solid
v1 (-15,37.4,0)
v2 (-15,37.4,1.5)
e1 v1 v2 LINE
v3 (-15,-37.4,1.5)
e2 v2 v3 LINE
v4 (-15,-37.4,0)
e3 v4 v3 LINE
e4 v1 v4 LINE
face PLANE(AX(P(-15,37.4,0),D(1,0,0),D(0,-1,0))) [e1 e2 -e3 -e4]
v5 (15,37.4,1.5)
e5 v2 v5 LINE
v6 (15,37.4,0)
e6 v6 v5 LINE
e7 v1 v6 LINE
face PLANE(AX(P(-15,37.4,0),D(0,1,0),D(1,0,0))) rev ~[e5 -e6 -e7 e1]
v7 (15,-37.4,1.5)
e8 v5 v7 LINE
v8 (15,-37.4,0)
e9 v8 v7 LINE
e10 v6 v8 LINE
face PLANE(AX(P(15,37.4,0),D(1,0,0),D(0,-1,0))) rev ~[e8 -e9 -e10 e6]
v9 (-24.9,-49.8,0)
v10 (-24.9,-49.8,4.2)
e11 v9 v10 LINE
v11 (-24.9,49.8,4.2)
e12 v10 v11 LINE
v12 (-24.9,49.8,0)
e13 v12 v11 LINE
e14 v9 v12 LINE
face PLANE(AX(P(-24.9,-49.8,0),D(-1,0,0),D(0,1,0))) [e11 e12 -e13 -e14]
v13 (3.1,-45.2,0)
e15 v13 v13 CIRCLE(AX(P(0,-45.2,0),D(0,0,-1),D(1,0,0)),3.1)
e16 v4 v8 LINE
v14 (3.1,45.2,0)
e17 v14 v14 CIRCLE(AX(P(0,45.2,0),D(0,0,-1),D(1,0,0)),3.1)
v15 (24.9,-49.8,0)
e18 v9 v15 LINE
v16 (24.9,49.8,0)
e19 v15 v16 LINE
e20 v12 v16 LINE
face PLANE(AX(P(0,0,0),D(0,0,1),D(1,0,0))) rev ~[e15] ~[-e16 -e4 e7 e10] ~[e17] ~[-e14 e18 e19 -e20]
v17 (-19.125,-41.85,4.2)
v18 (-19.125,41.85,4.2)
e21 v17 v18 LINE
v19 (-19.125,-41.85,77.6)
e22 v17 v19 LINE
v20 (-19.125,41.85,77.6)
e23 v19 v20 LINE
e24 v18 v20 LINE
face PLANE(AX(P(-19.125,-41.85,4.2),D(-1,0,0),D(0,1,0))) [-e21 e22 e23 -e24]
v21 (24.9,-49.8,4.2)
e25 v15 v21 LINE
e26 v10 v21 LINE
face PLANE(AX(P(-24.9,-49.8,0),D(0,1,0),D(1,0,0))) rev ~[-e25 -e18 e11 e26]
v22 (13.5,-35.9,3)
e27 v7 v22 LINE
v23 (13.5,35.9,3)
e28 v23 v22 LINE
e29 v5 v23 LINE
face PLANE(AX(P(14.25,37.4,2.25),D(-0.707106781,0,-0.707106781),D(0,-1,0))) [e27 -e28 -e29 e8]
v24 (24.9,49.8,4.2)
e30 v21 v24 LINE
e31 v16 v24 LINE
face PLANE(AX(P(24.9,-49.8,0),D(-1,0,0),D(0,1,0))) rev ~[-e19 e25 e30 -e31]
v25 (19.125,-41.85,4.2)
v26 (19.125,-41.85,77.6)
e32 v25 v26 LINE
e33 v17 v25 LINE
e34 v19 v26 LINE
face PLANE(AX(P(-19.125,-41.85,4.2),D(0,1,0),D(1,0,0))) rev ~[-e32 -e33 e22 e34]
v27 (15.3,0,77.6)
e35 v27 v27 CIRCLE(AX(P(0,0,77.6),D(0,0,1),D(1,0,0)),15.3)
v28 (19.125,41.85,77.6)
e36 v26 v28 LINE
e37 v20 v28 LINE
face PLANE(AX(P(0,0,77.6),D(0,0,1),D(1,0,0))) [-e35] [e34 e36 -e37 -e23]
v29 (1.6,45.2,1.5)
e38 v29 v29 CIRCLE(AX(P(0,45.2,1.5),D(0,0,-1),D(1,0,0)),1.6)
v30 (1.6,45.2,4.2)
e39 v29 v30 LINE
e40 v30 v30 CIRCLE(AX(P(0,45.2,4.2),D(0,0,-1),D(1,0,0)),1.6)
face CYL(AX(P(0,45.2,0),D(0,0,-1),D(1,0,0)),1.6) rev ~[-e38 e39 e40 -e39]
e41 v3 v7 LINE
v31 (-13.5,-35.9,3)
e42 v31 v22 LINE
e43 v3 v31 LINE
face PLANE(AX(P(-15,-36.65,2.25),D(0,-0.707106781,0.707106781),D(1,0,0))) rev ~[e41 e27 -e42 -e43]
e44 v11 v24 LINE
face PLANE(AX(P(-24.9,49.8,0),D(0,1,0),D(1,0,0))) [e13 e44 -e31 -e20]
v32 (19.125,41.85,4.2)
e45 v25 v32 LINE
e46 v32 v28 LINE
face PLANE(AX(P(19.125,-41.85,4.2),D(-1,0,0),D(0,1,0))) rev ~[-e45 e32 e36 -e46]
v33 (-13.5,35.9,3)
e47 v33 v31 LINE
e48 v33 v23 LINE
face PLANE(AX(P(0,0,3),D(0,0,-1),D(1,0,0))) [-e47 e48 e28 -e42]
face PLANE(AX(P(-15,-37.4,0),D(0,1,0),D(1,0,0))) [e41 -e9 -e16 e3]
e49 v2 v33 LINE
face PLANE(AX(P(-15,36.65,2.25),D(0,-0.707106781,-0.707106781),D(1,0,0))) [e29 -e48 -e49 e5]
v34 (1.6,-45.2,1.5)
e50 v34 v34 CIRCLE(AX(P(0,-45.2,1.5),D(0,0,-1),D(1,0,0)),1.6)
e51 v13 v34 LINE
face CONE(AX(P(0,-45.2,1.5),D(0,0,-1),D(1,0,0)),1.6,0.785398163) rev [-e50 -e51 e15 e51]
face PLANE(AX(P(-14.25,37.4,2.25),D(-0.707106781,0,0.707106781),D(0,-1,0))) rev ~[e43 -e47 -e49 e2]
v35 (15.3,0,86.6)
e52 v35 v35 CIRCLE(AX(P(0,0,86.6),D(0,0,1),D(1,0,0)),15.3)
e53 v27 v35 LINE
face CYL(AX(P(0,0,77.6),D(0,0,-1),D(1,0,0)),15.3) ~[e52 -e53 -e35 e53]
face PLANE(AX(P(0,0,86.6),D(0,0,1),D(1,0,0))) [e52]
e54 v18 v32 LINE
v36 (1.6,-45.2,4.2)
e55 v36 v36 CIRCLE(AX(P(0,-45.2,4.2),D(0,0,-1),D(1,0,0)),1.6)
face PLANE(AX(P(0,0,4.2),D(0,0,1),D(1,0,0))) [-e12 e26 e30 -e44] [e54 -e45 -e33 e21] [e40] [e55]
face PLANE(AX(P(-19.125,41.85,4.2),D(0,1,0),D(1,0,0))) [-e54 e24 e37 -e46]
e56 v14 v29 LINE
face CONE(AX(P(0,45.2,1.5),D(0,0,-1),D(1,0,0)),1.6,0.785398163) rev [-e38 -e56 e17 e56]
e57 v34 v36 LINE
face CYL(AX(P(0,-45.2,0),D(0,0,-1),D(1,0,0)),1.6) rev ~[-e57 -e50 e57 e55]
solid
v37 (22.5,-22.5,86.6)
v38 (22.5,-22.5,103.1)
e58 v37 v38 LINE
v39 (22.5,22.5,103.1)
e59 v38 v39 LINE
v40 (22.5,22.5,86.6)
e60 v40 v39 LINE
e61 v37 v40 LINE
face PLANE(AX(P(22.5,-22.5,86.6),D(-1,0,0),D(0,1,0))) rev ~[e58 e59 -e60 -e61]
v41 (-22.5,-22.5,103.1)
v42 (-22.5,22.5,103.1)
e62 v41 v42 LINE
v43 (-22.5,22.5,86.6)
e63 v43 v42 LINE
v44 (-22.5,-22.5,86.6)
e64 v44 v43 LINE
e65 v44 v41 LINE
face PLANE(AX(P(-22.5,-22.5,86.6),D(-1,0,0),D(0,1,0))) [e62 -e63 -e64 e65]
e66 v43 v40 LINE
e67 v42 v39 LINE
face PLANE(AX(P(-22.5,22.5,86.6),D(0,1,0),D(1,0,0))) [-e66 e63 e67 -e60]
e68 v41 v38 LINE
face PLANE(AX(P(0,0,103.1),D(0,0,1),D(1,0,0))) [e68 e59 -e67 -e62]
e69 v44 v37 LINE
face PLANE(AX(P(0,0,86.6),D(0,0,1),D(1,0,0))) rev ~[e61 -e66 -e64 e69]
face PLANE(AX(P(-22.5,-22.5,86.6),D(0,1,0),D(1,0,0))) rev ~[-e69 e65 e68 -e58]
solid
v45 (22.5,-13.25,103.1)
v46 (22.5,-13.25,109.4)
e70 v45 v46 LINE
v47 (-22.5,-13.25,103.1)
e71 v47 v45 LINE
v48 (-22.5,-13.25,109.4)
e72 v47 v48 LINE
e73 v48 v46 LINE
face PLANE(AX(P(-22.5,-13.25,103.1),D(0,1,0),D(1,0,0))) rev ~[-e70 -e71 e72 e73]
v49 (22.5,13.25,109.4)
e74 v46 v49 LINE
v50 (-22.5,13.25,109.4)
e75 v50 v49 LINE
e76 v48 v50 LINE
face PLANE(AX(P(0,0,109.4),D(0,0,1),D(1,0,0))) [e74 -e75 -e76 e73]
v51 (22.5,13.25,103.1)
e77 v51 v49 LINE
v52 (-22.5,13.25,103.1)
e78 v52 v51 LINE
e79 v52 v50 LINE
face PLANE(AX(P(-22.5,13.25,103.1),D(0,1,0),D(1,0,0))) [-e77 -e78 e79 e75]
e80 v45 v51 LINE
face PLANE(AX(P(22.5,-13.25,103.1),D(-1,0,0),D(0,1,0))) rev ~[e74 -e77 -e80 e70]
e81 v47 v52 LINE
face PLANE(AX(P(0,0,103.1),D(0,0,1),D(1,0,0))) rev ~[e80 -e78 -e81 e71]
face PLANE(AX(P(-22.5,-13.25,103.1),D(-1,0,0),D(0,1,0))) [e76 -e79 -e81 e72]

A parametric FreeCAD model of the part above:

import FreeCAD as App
import Part
import Sketcher

V = App.Vector


def edges_at(feature, points):
    """Names of the edges that pass closest to the given points."""
    edges = feature.Shape.Edges
    near = lambda p: min(range(len(edges)), key=lambda i: edges[i].distToShape(Part.Vertex(*p))[0])
    return sorted({f"Edge{near(p) + 1}" for p in points})

doc = App.newDocument("Part")
params = doc.addObject("Spreadsheet::Sheet", "Params")
for row, (alias, value) in enumerate([
    ("sketch1_width", "49.8 mm"),
    ("sketch1_height", "99.6 mm"),
    ("pad1_length", "4.2 mm"),
    ("sketch2_height", "83.7 mm"),
    ("sketch2_width", "38.25 mm"),
    ("pad2_length", "73.4 mm"),
    ("sketch3_diameter", "30.6 mm"),
    ("pad3_length", "9 mm"),
    ("sketch4_width", "30 mm"),
    ("sketch4_height", "74.8 mm"),
    ("pocket1_length", "3 mm"),
    ("sketch5_diameter", "3.2 mm"),
    ("pocket2_length", "25 mm"),
    ("chamfer_size", "1.5 mm"),
    ("sketch6_width", "45 mm"),
    ("pad4_length", "16.5 mm"),
    ("sketch7_width", "45 mm"),
    ("sketch7_height", "26.5 mm"),
    ("pad5_length", "6.3 mm"),
], start=1):
    params.set(f"A{row}", alias)
    params.set(f"B{row}", "=" + value)
    params.setAlias(f"B{row}", alias)

body = doc.addObject("PartDesign::Body", "Body")

# Sketch on XY plane
sketch1 = body.newObject("Sketcher::SketchObject", "Sketch")
sketch1.AttachmentSupport = (doc.getObject("XY_Plane"), [""])
sketch1.MapMode = "FlatFace"
sketch1.addGeometry([
    Part.LineSegment(V(-25, 50, 0), V(-25, -50, 0)),
    Part.LineSegment(V(-25, -50, 0), V(25, -50, 0)),
    Part.LineSegment(V(25, -50, 0), V(25, 50, 0)),
    Part.LineSegment(V(25, 50, 0), V(-25, 50, 0)),
], False)
sketch1.addConstraint([
    Sketcher.Constraint("Coincident", 0, 2, 1, 1),
    Sketcher.Constraint("Coincident", 1, 2, 2, 1),
    Sketcher.Constraint("Coincident", 2, 2, 3, 1),
    Sketcher.Constraint("Coincident", 3, 2, 0, 1),
    Sketcher.Constraint("Vertical", 0),
    Sketcher.Constraint("Horizontal", 1),
    Sketcher.Constraint("Vertical", 2),
    Sketcher.Constraint("Horizontal", 3),
    Sketcher.Constraint("Symmetric", 0, 2, 2, 2, -1, 1),
    Sketcher.Constraint("DistanceX", 1, 1, 1, 2, 49.8),
    Sketcher.Constraint("DistanceY", 0, 2, 0, 1, 99.6),
])
sketch1.setExpression("Constraints[9]", "Params.sketch1_width")
sketch1.setExpression("Constraints[10]", "Params.sketch1_height")
pad1 = body.newObject("PartDesign::Pad", "Pad")
pad1.Profile = sketch1
pad1.setExpression("Length", "Params.pad1_length")

# Sketch on XY plane
sketch2 = body.newObject("Sketcher::SketchObject", "Sketch001")
sketch2.AttachmentSupport = (doc.getObject("XY_Plane"), [""])
sketch2.MapMode = "FlatFace"
sketch2.AttachmentOffset = App.Placement(V(0, 0, 4.2), App.Rotation())
sketch2.addGeometry([
    Part.LineSegment(V(-19, 42, 0), V(-19, -42, 0)),
    Part.LineSegment(V(-19, -42, 0), V(19, -42, 0)),
    Part.LineSegment(V(19, -42, 0), V(19, 42, 0)),
    Part.LineSegment(V(19, 42, 0), V(-19, 42, 0)),
], False)
sketch2.addConstraint([
    Sketcher.Constraint("Coincident", 0, 2, 1, 1),
    Sketcher.Constraint("Coincident", 1, 2, 2, 1),
    Sketcher.Constraint("Coincident", 2, 2, 3, 1),
    Sketcher.Constraint("Coincident", 3, 2, 0, 1),
    Sketcher.Constraint("Vertical", 0),
    Sketcher.Constraint("Horizontal", 1),
    Sketcher.Constraint("Vertical", 2),
    Sketcher.Constraint("Horizontal", 3),
    Sketcher.Constraint("Symmetric", 0, 2, 2, 2, -1, 1),
    Sketcher.Constraint("DistanceY", 0, 2, 0, 1, 83.7),
    Sketcher.Constraint("DistanceX", 1, 1, 1, 2, 38.25),
])
sketch2.setExpression("Constraints[9]", "Params.sketch2_height")
sketch2.setExpression("Constraints[10]", "Params.sketch2_width")
pad2 = body.newObject("PartDesign::Pad", "Pad001")
pad2.Profile = sketch2
pad2.setExpression("Length", "Params.pad2_length")

# Sketch on XY plane
sketch3 = body.newObject("Sketcher::SketchObject", "Sketch002")
sketch3.AttachmentSupport = (doc.getObject("XY_Plane"), [""])
sketch3.MapMode = "FlatFace"
sketch3.AttachmentOffset = App.Placement(V(0, 0, 77.6), App.Rotation())
sketch3.addGeometry(Part.Circle(V(0, 0, 0), V(0, 0, 1), 15), False)
sketch3.addConstraint([
    Sketcher.Constraint("Coincident", 0, 3, -1, 1),
    Sketcher.Constraint("Diameter", 0, 30.6),
])
sketch3.setExpression("Constraints[1]", "Params.sketch3_diameter")
pad3 = body.newObject("PartDesign::Pad", "Pad002")
pad3.Profile = sketch3
pad3.setExpression("Length", "Params.pad3_length")

# Sketch on XY plane
sketch4 = body.newObject("Sketcher::SketchObject", "Sketch003")
sketch4.AttachmentSupport = (doc.getObject("XY_Plane"), [""])
sketch4.MapMode = "FlatFace"
sketch4.addGeometry([
    Part.LineSegment(V(-15, -37, 0), V(-15, 37, 0)),
    Part.LineSegment(V(-15, 37, 0), V(15, 37, 0)),
    Part.LineSegment(V(15, 37, 0), V(15, -37, 0)),
    Part.LineSegment(V(15, -37, 0), V(-15, -37, 0)),
], False)
sketch4.addConstraint([
    Sketcher.Constraint("Coincident", 0, 2, 1, 1),
    Sketcher.Constraint("Coincident", 1, 2, 2, 1),
    Sketcher.Constraint("Coincident", 2, 2, 3, 1),
    Sketcher.Constraint("Coincident", 3, 2, 0, 1),
    Sketcher.Constraint("Vertical", 0),
    Sketcher.Constraint("Horizontal", 1),
    Sketcher.Constraint("Vertical", 2),
    Sketcher.Constraint("Horizontal", 3),
    Sketcher.Constraint("Symmetric", 0, 2, 2, 2, -1, 1),
    Sketcher.Constraint("DistanceX", 1, 1, 1, 2, 30.0),
    Sketcher.Constraint("DistanceY", 0, 1, 0, 2, 74.8),
])
sketch4.setExpression("Constraints[9]", "Params.sketch4_width")
sketch4.setExpression("Constraints[10]", "Params.sketch4_height")
pocket1 = body.newObject("PartDesign::Pocket", "Pocket")
pocket1.Profile = sketch4
pocket1.setExpression("Length", "Params.pocket1_length")
pocket1.Reversed = True

# Sketch on XY plane
sketch5 = body.newObject("Sketcher::SketchObject", "Sketch004")
sketch5.AttachmentSupport = (doc.getObject("XY_Plane"), [""])
sketch5.MapMode = "FlatFace"
sketch5.addGeometry([
    Part.Circle(V(0, 45.2, 0), V(0, 0, 1), 1.6),
    Part.Circle(V(0, -45.2, 0), V(0, 0, 1), 1.6),
], False)
sketch5.addConstraint([
    Sketcher.Constraint("Equal", 0, 1),
    Sketcher.Constraint("Symmetric", 0, 3, 1, 3, -1, 1),
    Sketcher.Constraint("PointOnObject", 0, 3, -2),
    Sketcher.Constraint("Diameter", 0, 3.2),
    Sketcher.Constraint("DistanceY", -1, 1, 0, 3, 45.2),
])
sketch5.setExpression("Constraints[3]", "Params.sketch5_diameter")
pocket2 = body.newObject("PartDesign::Pocket", "Pocket001")
pocket2.Profile = sketch5
pocket2.setExpression("Length", "Params.pocket2_length")
pocket2.Reversed = True
doc.recompute()

chamfer = body.newObject("PartDesign::Chamfer", "Chamfer")
chamfer.Base = (pocket2, edges_at(pocket2, [
    (-1.6, 45.2, 0),
    (-1.6, -45.2, 0),
    (0, -37.4, 3),
    (-15, 0, 3),
    (0, 37.4, 3),
    (15, 0, 3),
]))
chamfer.setExpression("Size", "Params.chamfer_size")
body2 = doc.addObject("PartDesign::Body", "Body001")

# Sketch on XY plane
sketch6 = body2.newObject("Sketcher::SketchObject", "Sketch005")
sketch6.AttachmentSupport = (doc.getObject("XY_Plane001"), [""])
sketch6.MapMode = "FlatFace"
sketch6.AttachmentOffset = App.Placement(V(0, 0, 86.6), App.Rotation())
sketch6.addGeometry([
    Part.LineSegment(V(-22, 22, 0), V(-22, -22, 0)),
    Part.LineSegment(V(-22, -22, 0), V(22, -22, 0)),
    Part.LineSegment(V(22, -22, 0), V(22, 22, 0)),
    Part.LineSegment(V(22, 22, 0), V(-22, 22, 0)),
], False)
sketch6.addConstraint([
    Sketcher.Constraint("Coincident", 0, 2, 1, 1),
    Sketcher.Constraint("Coincident", 1, 2, 2, 1),
    Sketcher.Constraint("Coincident", 2, 2, 3, 1),
    Sketcher.Constraint("Coincident", 3, 2, 0, 1),
    Sketcher.Constraint("Vertical", 0),
    Sketcher.Constraint("Horizontal", 1),
    Sketcher.Constraint("Vertical", 2),
    Sketcher.Constraint("Horizontal", 3),
    Sketcher.Constraint("Symmetric", 0, 2, 2, 2, -1, 1),
    Sketcher.Constraint("Equal", 3, 0),
    Sketcher.Constraint("DistanceX", 1, 1, 1, 2, 45.0),
])
sketch6.setExpression("Constraints[10]", "Params.sketch6_width")
pad4 = body2.newObject("PartDesign::Pad", "Pad003")
pad4.Profile = sketch6
pad4.setExpression("Length", "Params.pad4_length")
body3 = doc.addObject("PartDesign::Body", "Body002")

# Sketch on XY plane
sketch7 = body3.newObject("Sketcher::SketchObject", "Sketch006")
sketch7.AttachmentSupport = (doc.getObject("XY_Plane002"), [""])
sketch7.MapMode = "FlatFace"
sketch7.AttachmentOffset = App.Placement(V(0, 0, 103.1), App.Rotation())
sketch7.addGeometry([
    Part.LineSegment(V(-22, 13, 0), V(-22, -13, 0)),
    Part.LineSegment(V(-22, -13, 0), V(22, -13, 0)),
    Part.LineSegment(V(22, -13, 0), V(22, 13, 0)),
    Part.LineSegment(V(22, 13, 0), V(-22, 13, 0)),
], False)
sketch7.addConstraint([
    Sketcher.Constraint("Coincident", 0, 2, 1, 1),
    Sketcher.Constraint("Coincident", 1, 2, 2, 1),
    Sketcher.Constraint("Coincident", 2, 2, 3, 1),
    Sketcher.Constraint("Coincident", 3, 2, 0, 1),
    Sketcher.Constraint("Vertical", 0),
    Sketcher.Constraint("Horizontal", 1),
    Sketcher.Constraint("Vertical", 2),
    Sketcher.Constraint("Horizontal", 3),
    Sketcher.Constraint("Symmetric", 0, 2, 2, 2, -1, 1),
    Sketcher.Constraint("DistanceX", 1, 1, 1, 2, 45.0),
    Sketcher.Constraint("DistanceY", 0, 2, 0, 1, 26.5),
])
sketch7.setExpression("Constraints[9]", "Params.sketch7_width")
sketch7.setExpression("Constraints[10]", "Params.sketch7_height")
pad5 = body3.newObject("PartDesign::Pad", "Pad004")
pad5.Profile = sketch7
pad5.setExpression("Length", "Params.pad5_length")

doc.recompute()
